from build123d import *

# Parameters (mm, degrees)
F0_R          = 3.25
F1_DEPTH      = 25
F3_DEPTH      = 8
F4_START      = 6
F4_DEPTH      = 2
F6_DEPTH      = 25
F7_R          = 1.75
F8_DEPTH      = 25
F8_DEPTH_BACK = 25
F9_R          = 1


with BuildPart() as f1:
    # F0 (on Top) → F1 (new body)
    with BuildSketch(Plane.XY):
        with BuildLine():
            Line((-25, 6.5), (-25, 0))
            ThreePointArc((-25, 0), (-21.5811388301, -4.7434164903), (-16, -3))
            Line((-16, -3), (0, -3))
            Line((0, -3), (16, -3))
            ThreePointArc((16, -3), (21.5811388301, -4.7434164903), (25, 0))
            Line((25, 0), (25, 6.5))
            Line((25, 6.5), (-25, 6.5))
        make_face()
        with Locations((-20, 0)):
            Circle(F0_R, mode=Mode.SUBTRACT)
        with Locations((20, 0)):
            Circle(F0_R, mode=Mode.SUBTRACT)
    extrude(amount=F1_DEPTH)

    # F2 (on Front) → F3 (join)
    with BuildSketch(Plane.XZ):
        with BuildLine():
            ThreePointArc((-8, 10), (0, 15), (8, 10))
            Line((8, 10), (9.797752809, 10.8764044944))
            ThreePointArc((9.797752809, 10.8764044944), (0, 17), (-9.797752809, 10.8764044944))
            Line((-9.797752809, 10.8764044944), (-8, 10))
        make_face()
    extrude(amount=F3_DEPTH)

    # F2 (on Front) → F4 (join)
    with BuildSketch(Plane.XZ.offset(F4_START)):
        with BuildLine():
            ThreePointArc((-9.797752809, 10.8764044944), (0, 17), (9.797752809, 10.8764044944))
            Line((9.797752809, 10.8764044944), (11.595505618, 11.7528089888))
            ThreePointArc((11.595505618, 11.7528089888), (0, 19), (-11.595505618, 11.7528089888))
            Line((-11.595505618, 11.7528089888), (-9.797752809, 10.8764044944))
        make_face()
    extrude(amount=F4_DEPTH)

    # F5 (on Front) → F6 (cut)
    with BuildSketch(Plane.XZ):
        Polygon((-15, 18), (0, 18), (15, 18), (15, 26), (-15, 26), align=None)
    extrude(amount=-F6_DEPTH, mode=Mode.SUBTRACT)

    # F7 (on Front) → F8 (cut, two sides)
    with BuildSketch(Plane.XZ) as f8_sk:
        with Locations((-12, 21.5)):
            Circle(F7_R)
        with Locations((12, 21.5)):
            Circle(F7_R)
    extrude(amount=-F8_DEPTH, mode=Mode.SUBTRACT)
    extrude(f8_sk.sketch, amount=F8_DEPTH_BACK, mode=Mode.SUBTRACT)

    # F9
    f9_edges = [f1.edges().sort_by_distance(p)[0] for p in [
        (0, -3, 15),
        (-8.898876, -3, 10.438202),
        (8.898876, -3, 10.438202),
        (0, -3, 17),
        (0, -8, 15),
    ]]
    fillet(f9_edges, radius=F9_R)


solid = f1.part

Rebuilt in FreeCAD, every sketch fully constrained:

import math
import FreeCAD as App
import Part
import Sketcher
Q = App.Units.Quantity


def edges_at(feature, points):
    """Names of the edges that pass closest to the given points."""
    edges = feature.Shape.Edges
    near = lambda p: min(range(len(edges)), key=lambda i: edges[i].distToShape(Part.Vertex(*p))[0])
    return sorted({f"Edge{near(p) + 1}" for p in points})

doc = App.newDocument("Part")
body = doc.addObject("PartDesign::Body", "Body")

# Sketch on XY plane
sketch1 = doc.addObject("Sketcher::SketchObject", "Sketch")
body.addObject(sketch1)
sketch1.AttachmentSupport = (doc.XY_Plane, [""])
sketch1.MapMode = "FlatFace"
sketch1.addGeometry([
    Part.LineSegment(App.Vector(-25, 6.5, 0), App.Vector(-25, 0, 0)),  # 0
    Part.ArcOfCircle(Part.Circle(App.Vector(-20, 0, 0), App.Vector(0, 0, 1), 5), math.radians(180), math.radians(323)),  # 1
    Part.LineSegment(App.Vector(-16, -3, 0), App.Vector(16, -3, 0)),  # 2
    Part.ArcOfCircle(Part.Circle(App.Vector(20, 0, 0), App.Vector(0, 0, 1), 5), math.radians(-143), math.radians(0)),  # 3
    Part.LineSegment(App.Vector(25, 0, 0), App.Vector(25, 6.5, 0)),  # 4
    Part.LineSegment(App.Vector(25, 6.5, 0), App.Vector(-25, 6.5, 0)),  # 5
    Part.Circle(App.Vector(-20, 0, 0), App.Vector(0, 0, 1), 3.2),  # 6
    Part.Circle(App.Vector(20, 0, 0), App.Vector(0, 0, 1), 3.2),  # 7
], False)
sketch1.addConstraint([
    Sketcher.Constraint("Tangent", 0, 2, 1, 1),
    Sketcher.Constraint("Coincident", 1, 2, 2, 1),
    Sketcher.Constraint("Coincident", 2, 2, 3, 1),
    Sketcher.Constraint("Tangent", 3, 2, 4, 1),
    Sketcher.Constraint("Coincident", 4, 2, 5, 1),
    Sketcher.Constraint("Coincident", 5, 2, 0, 1),
    Sketcher.Constraint("Vertical", 0),
    Sketcher.Constraint("Horizontal", 2),
    Sketcher.Constraint("Vertical", 4),
    Sketcher.Constraint("Horizontal", 5),
    Sketcher.Constraint("Coincident", 6, 3, 1, 3),
    Sketcher.Constraint("Coincident", 7, 3, 3, 3),
    Sketcher.Constraint("Equal", 1, 3),
    Sketcher.Constraint("Equal", 6, 7),
    Sketcher.Constraint("Symmetric", 1, 3, 3, 3, -1, 1),
    Sketcher.Constraint("PointOnObject", 1, 3, -1),
    Sketcher.Constraint("Radius", 1, Q("5 mm")),
    Sketcher.Constraint("Diameter", 6, Q("6.5 mm")),
    Sketcher.Constraint("DistanceX", 2, 1, 2, 2, Q("32 mm")),
    Sketcher.Constraint("DistanceX", 5, 2, 5, 1, Q("50 mm")),
    Sketcher.Constraint("DistanceY", 0, 2, 0, 1, Q("6.5 mm")),
])
pad1 = doc.addObject("PartDesign::Pad", "Pad")
body.addObject(pad1)
pad1.Profile = sketch1
pad1.Length = 25

# Sketch on XZ plane
sketch2 = doc.addObject("Sketcher::SketchObject", "Sketch001")
body.addObject(sketch2)
sketch2.AttachmentSupport = (doc.XZ_Plane, [""])
sketch2.MapMode = "FlatFace"
sketch2.addGeometry([
    Part.ArcOfCircle(Part.Circle(App.Vector(0, 6.1, 0), App.Vector(0, 0, 1), 8.9), math.radians(26), math.radians(154)),
    Part.LineSegment(App.Vector(8, 10, 0), App.Vector(9.8, 10.9, 0)),
    Part.ArcOfCircle(Part.Circle(App.Vector(0, 6.1, 0), App.Vector(0, 0, 1), 10.9), math.radians(26), math.radians(154)),
    Part.LineSegment(App.Vector(-9.8, 10.9, 0), App.Vector(-8, 10, 0)),
], False)
sketch2.addConstraint([
    Sketcher.Constraint("Coincident", 0, 1, 1, 1),
    Sketcher.Constraint("Coincident", 1, 2, 2, 1),
    Sketcher.Constraint("Coincident", 2, 2, 3, 1),
    Sketcher.Constraint("Coincident", 3, 2, 0, 2),
    Sketcher.Constraint("Coincident", 2, 3, 0, 3),
    Sketcher.Constraint("Symmetric", 1, 2, 2, 2, -2),
    Sketcher.Constraint("Horizontal", 0, 1, 3, 2),
    Sketcher.Constraint("Radius", 0, Q("8.9 mm")),
    Sketcher.Constraint("Radius", 2, Q("10.9 mm")),
    Sketcher.Constraint("DistanceX", -1, 1, 0, 1, Q("8 mm")),
    Sketcher.Constraint("DistanceY", -1, 1, 0, 1, Q("10 mm")),
    Sketcher.Constraint("DistanceX", -1, 1, 1, 2, Q("9.797753 mm")),
])
pad2 = doc.addObject("PartDesign::Pad", "Pad001")
body.addObject(pad2)
pad2.Profile = sketch2
pad2.Length = 8

# Sketch on XZ plane
sketch3 = doc.addObject("Sketcher::SketchObject", "Sketch002")
body.addObject(sketch3)
sketch3.AttachmentSupport = (doc.XZ_Plane, [""])
sketch3.MapMode = "FlatFace"
sketch3.AttachmentOffset = App.Placement(App.Vector(0, 0, 6), App.Rotation())
sketch3.addGeometry([
    Part.ArcOfCircle(Part.Circle(App.Vector(0, 6.1, 0), App.Vector(0, 0, 1), 10.9), math.radians(26), math.radians(154)),
    Part.LineSegment(App.Vector(9.8, 10.9, 0), App.Vector(11.6, 11.8, 0)),
    Part.ArcOfCircle(Part.Circle(App.Vector(0, 6.1, 0), App.Vector(0, 0, 1), 12.9), math.radians(26), math.radians(154)),
    Part.LineSegment(App.Vector(-11.6, 11.8, 0), App.Vector(-9.8, 10.9, 0)),
], False)
sketch3.addConstraint([
    Sketcher.Constraint("Coincident", 0, 1, 1, 1),
    Sketcher.Constraint("Coincident", 1, 2, 2, 1),
    Sketcher.Constraint("Coincident", 2, 2, 3, 1),
    Sketcher.Constraint("Coincident", 3, 2, 0, 2),
    Sketcher.Constraint("Coincident", 2, 3, 0, 3),
    Sketcher.Constraint("Symmetric", 1, 2, 2, 2, -2),
    Sketcher.Constraint("Horizontal", 0, 1, 3, 2),
    Sketcher.Constraint("Radius", 0, Q("10.9 mm")),
    Sketcher.Constraint("Radius", 2, Q("12.9 mm")),
    Sketcher.Constraint("DistanceY", -1, 1, 0, 3, Q("6.1 mm")),
    Sketcher.Constraint("DistanceY", -1, 1, 1, 2, Q("11.752809 mm")),
    Sketcher.Constraint("DistanceX", 2, 2, 0, 1, Q("21.393258 mm")),
])
pad3 = doc.addObject("PartDesign::Pad", "Pad002")
body.addObject(pad3)
pad3.Profile = sketch3
pad3.Length = 2

# Sketch on XZ plane
sketch4 = doc.addObject("Sketcher::SketchObject", "Sketch003")
body.addObject(sketch4)
sketch4.AttachmentSupport = (doc.XZ_Plane, [""])
sketch4.MapMode = "FlatFace"
sketch4.addGeometry([
    Part.LineSegment(App.Vector(-15, 18, 0), App.Vector(15, 18, 0)),
    Part.LineSegment(App.Vector(15, 18, 0), App.Vector(15, 26, 0)),
    Part.LineSegment(App.Vector(15, 26, 0), App.Vector(-15, 26, 0)),
    Part.LineSegment(App.Vector(-15, 26, 0), App.Vector(-15, 18, 0)),
], False)
sketch4.addConstraint([
    Sketcher.Constraint("Coincident", 0, 2, 1, 1),
    Sketcher.Constraint("Coincident", 1, 2, 2, 1),
    Sketcher.Constraint("Coincident", 2, 2, 3, 1),
    Sketcher.Constraint("Coincident", 3, 2, 0, 1),
    Sketcher.Constraint("Horizontal", 0),
    Sketcher.Constraint("Vertical", 1),
    Sketcher.Constraint("Horizontal", 2),
    Sketcher.Constraint("Vertical", 3),
    Sketcher.Constraint("DistanceX", 0, 1, 0, 2, Q("30 mm")),
    Sketcher.Constraint("DistanceY", 1, 1, 1, 2, Q("8 mm")),
    Sketcher.Constraint("DistanceX", -1, 1, 0, 2, Q("15 mm")),
    Sketcher.Constraint("DistanceY", -1, 1, 0, 2, Q("18 mm")),
])
pocket1 = doc.addObject("PartDesign::Pocket", "Pocket")
body.addObject(pocket1)
pocket1.Profile = sketch4
pocket1.Length = 25

# Sketch on XZ plane
sketch5 = doc.addObject("Sketcher::SketchObject", "Sketch004")
body.addObject(sketch5)
sketch5.AttachmentSupport = (doc.XZ_Plane, [""])
sketch5.MapMode = "FlatFace"
sketch5.addGeometry([
    Part.Circle(App.Vector(-12, 21.5, 0), App.Vector(0, 0, 1), 1.8),
    Part.Circle(App.Vector(12, 21.5, 0), App.Vector(0, 0, 1), 1.8),
], False)
sketch5.addConstraint([
    Sketcher.Constraint("Equal", 0, 1),
    Sketcher.Constraint("Symmetric", 0, 3, 1, 3, -2),
    Sketcher.Constraint("Diameter", 0, Q("3.5 mm")),
    Sketcher.Constraint("DistanceX", 0, 3, -1, 1, Q("12 mm")),
    Sketcher.Constraint("DistanceY", -1, 1, 0, 3, Q("21.5 mm")),
])
pocket2 = doc.addObject("PartDesign::Pocket", "Pocket001")
body.addObject(pocket2)
pocket2.Profile = sketch5
pocket2.Type = "ThroughAll"
pocket2.Midplane = True
doc.recompute()

fillet = doc.addObject("PartDesign::Fillet", "Fillet")
body.addObject(fillet)
fillet.Base = (pocket2, edges_at(pocket2, [
    (0, -3, 15),
    (-8.899, -3, 10.438),
    (8.899, -3, 10.438),
    (0, -3, 17),
    (0, -8, 15),
]))
fillet.Radius = 1

doc.recompute()
